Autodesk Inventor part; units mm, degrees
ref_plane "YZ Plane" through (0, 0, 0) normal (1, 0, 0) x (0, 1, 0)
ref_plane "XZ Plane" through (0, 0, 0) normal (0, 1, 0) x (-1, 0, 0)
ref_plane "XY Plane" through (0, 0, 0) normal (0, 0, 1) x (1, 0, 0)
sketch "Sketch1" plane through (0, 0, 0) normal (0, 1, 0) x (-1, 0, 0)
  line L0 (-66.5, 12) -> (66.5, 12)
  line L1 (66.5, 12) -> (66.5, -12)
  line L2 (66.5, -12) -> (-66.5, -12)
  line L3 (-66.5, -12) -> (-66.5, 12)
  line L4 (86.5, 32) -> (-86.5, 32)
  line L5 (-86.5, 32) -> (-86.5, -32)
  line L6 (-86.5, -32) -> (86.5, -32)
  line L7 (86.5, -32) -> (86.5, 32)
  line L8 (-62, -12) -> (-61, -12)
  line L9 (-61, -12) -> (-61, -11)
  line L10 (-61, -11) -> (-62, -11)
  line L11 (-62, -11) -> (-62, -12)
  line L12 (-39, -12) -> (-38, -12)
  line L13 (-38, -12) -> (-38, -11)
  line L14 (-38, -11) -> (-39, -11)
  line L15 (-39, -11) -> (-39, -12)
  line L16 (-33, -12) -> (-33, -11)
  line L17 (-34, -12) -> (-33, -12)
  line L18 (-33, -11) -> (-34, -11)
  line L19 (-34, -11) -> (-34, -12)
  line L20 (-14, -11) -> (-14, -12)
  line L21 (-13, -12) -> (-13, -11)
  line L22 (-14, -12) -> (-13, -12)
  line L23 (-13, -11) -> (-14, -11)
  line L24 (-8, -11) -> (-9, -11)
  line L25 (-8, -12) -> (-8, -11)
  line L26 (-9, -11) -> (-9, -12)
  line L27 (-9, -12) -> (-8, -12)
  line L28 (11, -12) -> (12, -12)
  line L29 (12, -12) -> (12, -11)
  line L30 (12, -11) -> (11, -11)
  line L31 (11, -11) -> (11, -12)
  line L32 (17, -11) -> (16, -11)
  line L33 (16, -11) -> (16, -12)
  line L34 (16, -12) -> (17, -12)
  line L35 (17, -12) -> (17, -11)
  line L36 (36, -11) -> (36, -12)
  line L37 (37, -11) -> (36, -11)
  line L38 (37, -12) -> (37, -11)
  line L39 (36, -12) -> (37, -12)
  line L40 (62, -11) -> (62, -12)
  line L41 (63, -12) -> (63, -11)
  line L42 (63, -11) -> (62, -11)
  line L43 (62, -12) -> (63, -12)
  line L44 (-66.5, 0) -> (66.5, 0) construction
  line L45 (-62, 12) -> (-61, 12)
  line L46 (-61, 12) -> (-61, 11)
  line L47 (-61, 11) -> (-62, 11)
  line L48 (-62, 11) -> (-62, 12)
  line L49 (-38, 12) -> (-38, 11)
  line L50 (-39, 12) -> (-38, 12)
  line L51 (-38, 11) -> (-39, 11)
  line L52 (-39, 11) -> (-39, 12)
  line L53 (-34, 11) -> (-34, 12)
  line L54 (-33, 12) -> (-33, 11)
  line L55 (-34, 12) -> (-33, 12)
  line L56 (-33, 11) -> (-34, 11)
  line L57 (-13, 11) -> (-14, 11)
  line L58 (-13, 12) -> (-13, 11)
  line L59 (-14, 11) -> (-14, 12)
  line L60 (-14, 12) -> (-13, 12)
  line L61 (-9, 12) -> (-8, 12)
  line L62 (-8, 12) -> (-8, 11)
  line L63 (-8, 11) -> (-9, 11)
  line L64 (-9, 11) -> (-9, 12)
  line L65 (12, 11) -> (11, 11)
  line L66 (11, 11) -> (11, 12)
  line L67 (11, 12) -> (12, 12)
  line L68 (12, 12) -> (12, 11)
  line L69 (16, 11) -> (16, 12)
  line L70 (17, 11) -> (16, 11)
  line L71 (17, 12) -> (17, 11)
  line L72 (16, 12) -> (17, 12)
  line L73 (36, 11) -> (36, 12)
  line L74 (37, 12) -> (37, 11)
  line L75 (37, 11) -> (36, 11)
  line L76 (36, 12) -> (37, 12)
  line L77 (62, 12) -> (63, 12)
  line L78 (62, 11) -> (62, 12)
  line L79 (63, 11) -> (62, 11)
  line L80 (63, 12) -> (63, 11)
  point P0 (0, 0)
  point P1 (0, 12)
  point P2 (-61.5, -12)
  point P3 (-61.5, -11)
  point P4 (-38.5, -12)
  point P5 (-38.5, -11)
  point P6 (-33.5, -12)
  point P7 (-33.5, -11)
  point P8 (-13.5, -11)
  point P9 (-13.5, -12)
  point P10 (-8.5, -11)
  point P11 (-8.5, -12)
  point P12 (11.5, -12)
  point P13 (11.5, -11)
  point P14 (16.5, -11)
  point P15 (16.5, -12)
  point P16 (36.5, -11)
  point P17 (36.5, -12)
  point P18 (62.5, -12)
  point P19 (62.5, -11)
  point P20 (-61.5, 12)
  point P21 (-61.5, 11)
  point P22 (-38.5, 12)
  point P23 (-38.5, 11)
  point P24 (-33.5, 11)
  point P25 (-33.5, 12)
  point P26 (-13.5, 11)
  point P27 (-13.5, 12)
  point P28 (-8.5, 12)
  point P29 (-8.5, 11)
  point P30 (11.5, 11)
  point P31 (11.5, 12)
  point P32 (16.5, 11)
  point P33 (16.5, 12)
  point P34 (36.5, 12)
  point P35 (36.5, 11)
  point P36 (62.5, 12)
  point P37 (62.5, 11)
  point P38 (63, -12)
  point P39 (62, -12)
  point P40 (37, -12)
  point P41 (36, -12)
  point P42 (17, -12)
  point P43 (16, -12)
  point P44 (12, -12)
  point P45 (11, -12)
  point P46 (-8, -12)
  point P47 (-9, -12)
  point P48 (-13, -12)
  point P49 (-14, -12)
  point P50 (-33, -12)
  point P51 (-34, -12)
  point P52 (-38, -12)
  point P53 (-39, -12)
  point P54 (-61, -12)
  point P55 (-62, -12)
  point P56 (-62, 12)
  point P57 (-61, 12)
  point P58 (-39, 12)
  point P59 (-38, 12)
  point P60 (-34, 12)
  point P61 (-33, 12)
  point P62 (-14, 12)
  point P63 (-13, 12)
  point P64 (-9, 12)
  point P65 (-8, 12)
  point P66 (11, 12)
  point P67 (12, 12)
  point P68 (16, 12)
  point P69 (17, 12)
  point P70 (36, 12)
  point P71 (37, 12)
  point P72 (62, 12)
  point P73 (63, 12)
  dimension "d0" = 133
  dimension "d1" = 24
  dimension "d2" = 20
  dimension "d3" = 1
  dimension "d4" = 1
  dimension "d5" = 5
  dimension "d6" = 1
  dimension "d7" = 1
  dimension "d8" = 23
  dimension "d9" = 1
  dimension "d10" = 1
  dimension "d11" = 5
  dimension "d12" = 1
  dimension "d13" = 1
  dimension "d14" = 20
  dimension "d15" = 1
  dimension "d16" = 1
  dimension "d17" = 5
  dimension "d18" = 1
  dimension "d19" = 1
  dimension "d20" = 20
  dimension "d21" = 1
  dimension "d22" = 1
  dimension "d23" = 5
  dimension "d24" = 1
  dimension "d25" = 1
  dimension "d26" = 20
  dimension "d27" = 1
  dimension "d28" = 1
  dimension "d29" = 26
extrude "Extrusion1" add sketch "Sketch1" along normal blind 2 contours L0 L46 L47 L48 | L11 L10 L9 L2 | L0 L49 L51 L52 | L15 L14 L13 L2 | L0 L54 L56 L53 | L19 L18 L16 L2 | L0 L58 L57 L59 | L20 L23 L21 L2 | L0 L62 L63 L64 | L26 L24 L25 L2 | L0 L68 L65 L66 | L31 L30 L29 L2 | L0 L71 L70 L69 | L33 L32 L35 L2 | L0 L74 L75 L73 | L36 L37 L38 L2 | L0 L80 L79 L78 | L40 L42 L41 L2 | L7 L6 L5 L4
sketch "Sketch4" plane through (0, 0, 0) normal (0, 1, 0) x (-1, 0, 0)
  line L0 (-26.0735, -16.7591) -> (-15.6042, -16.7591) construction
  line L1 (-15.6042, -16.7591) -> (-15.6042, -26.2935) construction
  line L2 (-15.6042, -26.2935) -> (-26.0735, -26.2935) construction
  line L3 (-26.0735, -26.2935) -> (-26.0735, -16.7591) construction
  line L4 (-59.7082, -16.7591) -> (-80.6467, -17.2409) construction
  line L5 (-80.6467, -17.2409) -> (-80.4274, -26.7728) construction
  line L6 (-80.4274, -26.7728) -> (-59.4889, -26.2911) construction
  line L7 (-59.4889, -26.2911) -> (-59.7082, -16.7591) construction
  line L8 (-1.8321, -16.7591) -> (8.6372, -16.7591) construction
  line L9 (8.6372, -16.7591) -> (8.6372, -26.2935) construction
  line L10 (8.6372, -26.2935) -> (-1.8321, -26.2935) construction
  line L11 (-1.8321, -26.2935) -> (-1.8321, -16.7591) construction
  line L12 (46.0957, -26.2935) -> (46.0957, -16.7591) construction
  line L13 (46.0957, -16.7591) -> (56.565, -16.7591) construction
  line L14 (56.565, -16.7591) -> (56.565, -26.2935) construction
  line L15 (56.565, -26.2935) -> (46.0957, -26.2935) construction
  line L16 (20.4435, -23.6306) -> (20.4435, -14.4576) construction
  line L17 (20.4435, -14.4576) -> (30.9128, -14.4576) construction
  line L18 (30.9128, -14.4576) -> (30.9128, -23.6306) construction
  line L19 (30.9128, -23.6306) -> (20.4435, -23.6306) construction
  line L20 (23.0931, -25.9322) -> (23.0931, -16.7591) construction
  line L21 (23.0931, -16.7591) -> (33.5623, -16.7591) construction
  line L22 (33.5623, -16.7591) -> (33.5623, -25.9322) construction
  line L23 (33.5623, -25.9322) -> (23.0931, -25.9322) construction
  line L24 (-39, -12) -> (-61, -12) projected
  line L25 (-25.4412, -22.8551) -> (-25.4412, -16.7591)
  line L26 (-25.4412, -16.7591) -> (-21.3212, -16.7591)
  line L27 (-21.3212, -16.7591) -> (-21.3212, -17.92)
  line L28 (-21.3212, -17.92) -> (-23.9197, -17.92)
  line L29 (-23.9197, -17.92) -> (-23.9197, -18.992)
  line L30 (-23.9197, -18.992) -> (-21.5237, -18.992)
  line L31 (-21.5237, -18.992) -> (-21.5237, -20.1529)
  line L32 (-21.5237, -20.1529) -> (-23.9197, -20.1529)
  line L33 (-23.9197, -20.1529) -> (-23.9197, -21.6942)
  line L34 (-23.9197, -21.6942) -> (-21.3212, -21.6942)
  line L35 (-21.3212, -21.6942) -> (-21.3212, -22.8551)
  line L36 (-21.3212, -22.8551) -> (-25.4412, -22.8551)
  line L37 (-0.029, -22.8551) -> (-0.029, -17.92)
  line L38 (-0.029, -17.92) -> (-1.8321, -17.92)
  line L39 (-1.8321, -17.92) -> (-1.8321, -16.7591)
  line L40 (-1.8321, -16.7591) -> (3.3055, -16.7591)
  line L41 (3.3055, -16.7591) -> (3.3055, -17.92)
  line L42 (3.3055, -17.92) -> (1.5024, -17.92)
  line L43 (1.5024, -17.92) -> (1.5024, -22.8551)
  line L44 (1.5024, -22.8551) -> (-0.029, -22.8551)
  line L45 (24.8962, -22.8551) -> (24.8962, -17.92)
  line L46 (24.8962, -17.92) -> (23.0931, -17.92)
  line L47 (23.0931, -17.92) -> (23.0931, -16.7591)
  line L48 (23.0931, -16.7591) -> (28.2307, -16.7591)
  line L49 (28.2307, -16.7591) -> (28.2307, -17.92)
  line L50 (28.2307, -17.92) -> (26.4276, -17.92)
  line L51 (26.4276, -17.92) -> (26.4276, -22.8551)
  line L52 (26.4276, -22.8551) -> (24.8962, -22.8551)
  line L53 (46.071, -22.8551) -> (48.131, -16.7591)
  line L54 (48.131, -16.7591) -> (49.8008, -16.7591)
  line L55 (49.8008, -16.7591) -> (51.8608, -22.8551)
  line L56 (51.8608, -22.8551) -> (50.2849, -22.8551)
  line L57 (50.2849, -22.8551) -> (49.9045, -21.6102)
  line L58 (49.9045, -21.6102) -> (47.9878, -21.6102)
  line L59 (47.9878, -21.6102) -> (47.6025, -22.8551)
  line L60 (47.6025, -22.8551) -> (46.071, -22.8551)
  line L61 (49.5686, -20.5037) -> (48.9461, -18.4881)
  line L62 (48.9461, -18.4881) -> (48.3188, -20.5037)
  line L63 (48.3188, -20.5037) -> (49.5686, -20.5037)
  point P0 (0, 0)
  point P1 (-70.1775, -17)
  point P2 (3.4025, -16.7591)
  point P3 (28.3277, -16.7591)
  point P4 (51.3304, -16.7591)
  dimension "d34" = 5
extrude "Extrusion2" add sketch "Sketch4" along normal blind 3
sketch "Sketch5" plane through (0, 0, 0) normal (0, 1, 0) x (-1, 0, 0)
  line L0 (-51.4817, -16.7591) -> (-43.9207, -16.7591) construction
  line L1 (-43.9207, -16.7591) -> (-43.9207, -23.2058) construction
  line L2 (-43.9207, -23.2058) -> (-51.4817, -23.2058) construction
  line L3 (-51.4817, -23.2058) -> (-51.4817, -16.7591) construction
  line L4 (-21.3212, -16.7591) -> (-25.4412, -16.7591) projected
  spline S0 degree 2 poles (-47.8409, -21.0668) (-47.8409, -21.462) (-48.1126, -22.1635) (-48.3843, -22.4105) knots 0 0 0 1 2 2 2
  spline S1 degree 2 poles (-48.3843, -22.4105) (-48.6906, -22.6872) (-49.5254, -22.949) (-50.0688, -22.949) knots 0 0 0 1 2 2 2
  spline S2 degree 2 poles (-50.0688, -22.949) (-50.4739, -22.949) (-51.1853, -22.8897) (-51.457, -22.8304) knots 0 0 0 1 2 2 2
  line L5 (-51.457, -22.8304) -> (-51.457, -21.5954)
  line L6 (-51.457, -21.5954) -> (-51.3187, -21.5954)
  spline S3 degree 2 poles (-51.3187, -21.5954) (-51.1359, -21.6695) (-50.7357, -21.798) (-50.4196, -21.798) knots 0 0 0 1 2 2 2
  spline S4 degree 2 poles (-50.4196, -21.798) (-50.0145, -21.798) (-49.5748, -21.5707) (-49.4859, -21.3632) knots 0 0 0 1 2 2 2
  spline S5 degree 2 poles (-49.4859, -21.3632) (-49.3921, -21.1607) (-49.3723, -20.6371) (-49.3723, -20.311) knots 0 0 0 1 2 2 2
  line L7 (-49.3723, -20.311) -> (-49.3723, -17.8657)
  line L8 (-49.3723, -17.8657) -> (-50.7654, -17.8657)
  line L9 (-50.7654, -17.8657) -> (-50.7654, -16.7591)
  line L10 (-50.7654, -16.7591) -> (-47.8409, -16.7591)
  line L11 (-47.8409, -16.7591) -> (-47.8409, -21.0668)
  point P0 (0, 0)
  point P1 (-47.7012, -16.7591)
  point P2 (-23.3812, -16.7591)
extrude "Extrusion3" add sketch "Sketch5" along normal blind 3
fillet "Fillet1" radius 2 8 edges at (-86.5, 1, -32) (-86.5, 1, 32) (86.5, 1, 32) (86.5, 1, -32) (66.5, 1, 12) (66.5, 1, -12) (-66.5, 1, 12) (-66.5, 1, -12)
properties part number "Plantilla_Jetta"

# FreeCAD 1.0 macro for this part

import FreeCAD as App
import Part
import Sketcher

V = App.Vector
Q = App.Units.Quantity


def edges_at(feature, points):
    """Names of the edges that pass closest to the given points."""
    edges = feature.Shape.Edges
    near = lambda p: min(range(len(edges)), key=lambda i: edges[i].distToShape(Part.Vertex(*p))[0])
    return sorted({f"Edge{near(p) + 1}" for p in points})

doc = App.newDocument("Part")
body = doc.addObject("PartDesign::Body", "Body")

sketch1 = body.newObject("Sketcher::SketchObject", "Sketch")
sketch1.AttachmentSupport = (doc.getObject("XZ_Plane"), [""])
sketch1.MapMode = "FlatFace"
sketch1.addGeometry(Part.LineSegment(V(-86.5, -32, 0), V(-86.5, 32, 0)), False)
sketch1.addGeometry(Part.LineSegment(V(-86.5, 32, 0), V(86.5, 32, 0)), False)
sketch1.addGeometry(Part.LineSegment(V(86.5, 32, 0), V(86.5, -32, 0)), False)
sketch1.addGeometry(Part.LineSegment(V(86.5, -32, 0), V(-86.5, -32, 0)), False)
sketch1.addGeometry(Part.LineSegment(V(61, 11, 0), V(61, 12, 0)), False)
sketch1.addGeometry(Part.LineSegment(V(61, 12, 0), V(39, 12, 0)), False)
sketch1.addGeometry(Part.LineSegment(V(39, 12, 0), V(39, 11, 0)), False)
sketch1.addGeometry(Part.LineSegment(V(39, 11, 0), V(38, 11, 0)), False)
sketch1.addGeometry(Part.LineSegment(V(38, 11, 0), V(38, 12, 0)), False)
sketch1.addGeometry(Part.LineSegment(V(38, 12, 0), V(34, 12, 0)), False)
sketch1.addGeometry(Part.LineSegment(V(34, 12, 0), V(34, 11, 0)), False)
sketch1.addGeometry(Part.LineSegment(V(34, 11, 0), V(33, 11, 0)), False)
sketch1.addGeometry(Part.LineSegment(V(33, 11, 0), V(33, 12, 0)), False)
sketch1.addGeometry(Part.LineSegment(V(33, 12, 0), V(14, 12, 0)), False)
sketch1.addGeometry(Part.LineSegment(V(14, 12, 0), V(14, 11, 0)), False)
sketch1.addGeometry(Part.LineSegment(V(14, 11, 0), V(13, 11, 0)), False)
sketch1.addGeometry(Part.LineSegment(V(13, 11, 0), V(13, 12, 0)), False)
sketch1.addGeometry(Part.LineSegment(V(13, 12, 0), V(9, 12, 0)), False)
sketch1.addGeometry(Part.LineSegment(V(9, 12, 0), V(9, 11, 0)), False)
sketch1.addGeometry(Part.LineSegment(V(9, 11, 0), V(8, 11, 0)), False)
sketch1.addGeometry(Part.LineSegment(V(8, 11, 0), V(8, 12, 0)), False)
sketch1.addGeometry(Part.LineSegment(V(8, 12, 0), V(-11, 12, 0)), False)
sketch1.addGeometry(Part.LineSegment(V(-11, 12, 0), V(-11, 11, 0)), False)
sketch1.addGeometry(Part.LineSegment(V(-11, 11, 0), V(-12, 11, 0)), False)
sketch1.addGeometry(Part.LineSegment(V(-12, 11, 0), V(-12, 12, 0)), False)
sketch1.addGeometry(Part.LineSegment(V(-12, 12, 0), V(-16, 12, 0)), False)
sketch1.addGeometry(Part.LineSegment(V(-16, 12, 0), V(-16, 11, 0)), False)
sketch1.addGeometry(Part.LineSegment(V(-16, 11, 0), V(-17, 11, 0)), False)
sketch1.addGeometry(Part.LineSegment(V(-17, 11, 0), V(-17, 12, 0)), False)
sketch1.addGeometry(Part.LineSegment(V(-17, 12, 0), V(-36, 12, 0)), False)
sketch1.addGeometry(Part.LineSegment(V(-36, 12, 0), V(-36, 11, 0)), False)
sketch1.addGeometry(Part.LineSegment(V(-36, 11, 0), V(-37, 11, 0)), False)
sketch1.addGeometry(Part.LineSegment(V(-37, 11, 0), V(-37, 12, 0)), False)
sketch1.addGeometry(Part.LineSegment(V(-37, 12, 0), V(-62, 12, 0)), False)
sketch1.addGeometry(Part.LineSegment(V(-62, 12, 0), V(-62, 11, 0)), False)
sketch1.addGeometry(Part.LineSegment(V(-62, 11, 0), V(-63, 11, 0)), False)
sketch1.addGeometry(Part.LineSegment(V(-63, 11, 0), V(-63, 12, 0)), False)
sketch1.addGeometry(Part.LineSegment(V(-63, 12, 0), V(-66.5, 12, 0)), False)
sketch1.addGeometry(Part.LineSegment(V(-66.5, 12, 0), V(-66.5, -12, 0)), False)
sketch1.addGeometry(Part.LineSegment(V(-66.5, -12, 0), V(-63, -12, 0)), False)
sketch1.addGeometry(Part.LineSegment(V(-63, -12, 0), V(-63, -11, 0)), False)
sketch1.addGeometry(Part.LineSegment(V(-63, -11, 0), V(-62, -11, 0)), False)
sketch1.addGeometry(Part.LineSegment(V(-62, -11, 0), V(-62, -12, 0)), False)
sketch1.addGeometry(Part.LineSegment(V(-62, -12, 0), V(-37, -12, 0)), False)
sketch1.addGeometry(Part.LineSegment(V(-37, -12, 0), V(-37, -11, 0)), False)
sketch1.addGeometry(Part.LineSegment(V(-37, -11, 0), V(-36, -11, 0)), False)
sketch1.addGeometry(Part.LineSegment(V(-36, -11, 0), V(-36, -12, 0)), False)
sketch1.addGeometry(Part.LineSegment(V(-36, -12, 0), V(-17, -12, 0)), False)
sketch1.addGeometry(Part.LineSegment(V(-17, -12, 0), V(-17, -11, 0)), False)
sketch1.addGeometry(Part.LineSegment(V(-17, -11, 0), V(-16, -11, 0)), False)
sketch1.addGeometry(Part.LineSegment(V(-16, -11, 0), V(-16, -12, 0)), False)
sketch1.addGeometry(Part.LineSegment(V(-16, -12, 0), V(-12, -12, 0)), False)
sketch1.addGeometry(Part.LineSegment(V(-12, -12, 0), V(-12, -11, 0)), False)
sketch1.addGeometry(Part.LineSegment(V(-12, -11, 0), V(-11, -11, 0)), False)
sketch1.addGeometry(Part.LineSegment(V(-11, -11, 0), V(-11, -12, 0)), False)
sketch1.addGeometry(Part.LineSegment(V(-11, -12, 0), V(8, -12, 0)), False)
sketch1.addGeometry(Part.LineSegment(V(8, -12, 0), V(8, -11, 0)), False)
sketch1.addGeometry(Part.LineSegment(V(8, -11, 0), V(9, -11, 0)), False)
sketch1.addGeometry(Part.LineSegment(V(9, -11, 0), V(9, -12, 0)), False)
sketch1.addGeometry(Part.LineSegment(V(9, -12, 0), V(13, -12, 0)), False)
sketch1.addGeometry(Part.LineSegment(V(13, -12, 0), V(13, -11, 0)), False)
sketch1.addGeometry(Part.LineSegment(V(13, -11, 0), V(14, -11, 0)), False)
sketch1.addGeometry(Part.LineSegment(V(14, -11, 0), V(14, -12, 0)), False)
sketch1.addGeometry(Part.LineSegment(V(14, -12, 0), V(33, -12, 0)), False)
sketch1.addGeometry(Part.LineSegment(V(33, -12, 0), V(33, -11, 0)), False)
sketch1.addGeometry(Part.LineSegment(V(33, -11, 0), V(34, -11, 0)), False)
sketch1.addGeometry(Part.LineSegment(V(34, -11, 0), V(34, -12, 0)), False)
sketch1.addGeometry(Part.LineSegment(V(34, -12, 0), V(38, -12, 0)), False)
sketch1.addGeometry(Part.LineSegment(V(38, -12, 0), V(38, -11, 0)), False)
sketch1.addGeometry(Part.LineSegment(V(38, -11, 0), V(39, -11, 0)), False)
sketch1.addGeometry(Part.LineSegment(V(39, -11, 0), V(39, -12, 0)), False)
sketch1.addGeometry(Part.LineSegment(V(39, -12, 0), V(61, -12, 0)), False)
sketch1.addGeometry(Part.LineSegment(V(61, -12, 0), V(61, -11, 0)), False)
sketch1.addGeometry(Part.LineSegment(V(61, -11, 0), V(62, -11, 0)), False)
sketch1.addGeometry(Part.LineSegment(V(62, -11, 0), V(62, -12, 0)), False)
sketch1.addGeometry(Part.LineSegment(V(62, -12, 0), V(66.5, -12, 0)), False)
sketch1.addGeometry(Part.LineSegment(V(66.5, -12, 0), V(66.5, 12, 0)), False)
sketch1.addGeometry(Part.LineSegment(V(66.5, 12, 0), V(62, 12, 0)), False)
sketch1.addGeometry(Part.LineSegment(V(62, 12, 0), V(62, 11, 0)), False)
sketch1.addGeometry(Part.LineSegment(V(62, 11, 0), V(61, 11, 0)), False)
sketch1.addConstraint(Sketcher.Constraint("Coincident", 0, 2, 1, 1))
sketch1.addConstraint(Sketcher.Constraint("Coincident", 1, 2, 2, 1))
sketch1.addConstraint(Sketcher.Constraint("Coincident", 2, 2, 3, 1))
sketch1.addConstraint(Sketcher.Constraint("Coincident", 3, 2, 0, 1))
sketch1.addConstraint(Sketcher.Constraint("Coincident", 4, 2, 5, 1))
sketch1.addConstraint(Sketcher.Constraint("Coincident", 5, 2, 6, 1))
sketch1.addConstraint(Sketcher.Constraint("Coincident", 6, 2, 7, 1))
sketch1.addConstraint(Sketcher.Constraint("Coincident", 7, 2, 8, 1))
sketch1.addConstraint(Sketcher.Constraint("Coincident", 8, 2, 9, 1))
sketch1.addConstraint(Sketcher.Constraint("Coincident", 9, 2, 10, 1))
sketch1.addConstraint(Sketcher.Constraint("Coincident", 10, 2, 11, 1))
sketch1.addConstraint(Sketcher.Constraint("Coincident", 11, 2, 12, 1))
sketch1.addConstraint(Sketcher.Constraint("Coincident", 12, 2, 13, 1))
sketch1.addConstraint(Sketcher.Constraint("Coincident", 13, 2, 14, 1))
sketch1.addConstraint(Sketcher.Constraint("Coincident", 14, 2, 15, 1))
sketch1.addConstraint(Sketcher.Constraint("Coincident", 15, 2, 16, 1))
sketch1.addConstraint(Sketcher.Constraint("Coincident", 16, 2, 17, 1))
sketch1.addConstraint(Sketcher.Constraint("Coincident", 17, 2, 18, 1))
sketch1.addConstraint(Sketcher.Constraint("Coincident", 18, 2, 19, 1))
sketch1.addConstraint(Sketcher.Constraint("Coincident", 19, 2, 20, 1))
sketch1.addConstraint(Sketcher.Constraint("Coincident", 20, 2, 21, 1))
sketch1.addConstraint(Sketcher.Constraint("Coincident", 21, 2, 22, 1))
sketch1.addConstraint(Sketcher.Constraint("Coincident", 22, 2, 23, 1))
sketch1.addConstraint(Sketcher.Constraint("Coincident", 23, 2, 24, 1))
sketch1.addConstraint(Sketcher.Constraint("Coincident", 24, 2, 25, 1))
sketch1.addConstraint(Sketcher.Constraint("Coincident", 25, 2, 26, 1))
sketch1.addConstraint(Sketcher.Constraint("Coincident", 26, 2, 27, 1))
sketch1.addConstraint(Sketcher.Constraint("Coincident", 27, 2, 28, 1))
sketch1.addConstraint(Sketcher.Constraint("Coincident", 28, 2, 29, 1))
sketch1.addConstraint(Sketcher.Constraint("Coincident", 29, 2, 30, 1))
sketch1.addConstraint(Sketcher.Constraint("Coincident", 30, 2, 31, 1))
sketch1.addConstraint(Sketcher.Constraint("Coincident", 31, 2, 32, 1))
sketch1.addConstraint(Sketcher.Constraint("Coincident", 32, 2, 33, 1))
sketch1.addConstraint(Sketcher.Constraint("Coincident", 33, 2, 34, 1))
sketch1.addConstraint(Sketcher.Constraint("Coincident", 34, 2, 35, 1))
sketch1.addConstraint(Sketcher.Constraint("Coincident", 35, 2, 36, 1))
sketch1.addConstraint(Sketcher.Constraint("Coincident", 36, 2, 37, 1))
sketch1.addConstraint(Sketcher.Constraint("Coincident", 37, 2, 38, 1))
sketch1.addConstraint(Sketcher.Constraint("Coincident", 38, 2, 39, 1))
sketch1.addConstraint(Sketcher.Constraint("Coincident", 39, 2, 40, 1))
sketch1.addConstraint(Sketcher.Constraint("Coincident", 40, 2, 41, 1))
sketch1.addConstraint(Sketcher.Constraint("Coincident", 41, 2, 42, 1))
sketch1.addConstraint(Sketcher.Constraint("Coincident", 42, 2, 43, 1))
sketch1.addConstraint(Sketcher.Constraint("Coincident", 43, 2, 44, 1))
sketch1.addConstraint(Sketcher.Constraint("Coincident", 44, 2, 45, 1))
sketch1.addConstraint(Sketcher.Constraint("Coincident", 45, 2, 46, 1))
sketch1.addConstraint(Sketcher.Constraint("Coincident", 46, 2, 47, 1))
sketch1.addConstraint(Sketcher.Constraint("Coincident", 47, 2, 48, 1))
sketch1.addConstraint(Sketcher.Constraint("Coincident", 48, 2, 49, 1))
sketch1.addConstraint(Sketcher.Constraint("Coincident", 49, 2, 50, 1))
sketch1.addConstraint(Sketcher.Constraint("Coincident", 50, 2, 51, 1))
sketch1.addConstraint(Sketcher.Constraint("Coincident", 51, 2, 52, 1))
sketch1.addConstraint(Sketcher.Constraint("Coincident", 52, 2, 53, 1))
sketch1.addConstraint(Sketcher.Constraint("Coincident", 53, 2, 54, 1))
sketch1.addConstraint(Sketcher.Constraint("Coincident", 54, 2, 55, 1))
sketch1.addConstraint(Sketcher.Constraint("Coincident", 55, 2, 56, 1))
sketch1.addConstraint(Sketcher.Constraint("Coincident", 56, 2, 57, 1))
sketch1.addConstraint(Sketcher.Constraint("Coincident", 57, 2, 58, 1))
sketch1.addConstraint(Sketcher.Constraint("Coincident", 58, 2, 59, 1))
sketch1.addConstraint(Sketcher.Constraint("Coincident", 59, 2, 60, 1))
sketch1.addConstraint(Sketcher.Constraint("Coincident", 60, 2, 61, 1))
sketch1.addConstraint(Sketcher.Constraint("Coincident", 61, 2, 62, 1))
sketch1.addConstraint(Sketcher.Constraint("Coincident", 62, 2, 63, 1))
sketch1.addConstraint(Sketcher.Constraint("Coincident", 63, 2, 64, 1))
sketch1.addConstraint(Sketcher.Constraint("Coincident", 64, 2, 65, 1))
sketch1.addConstraint(Sketcher.Constraint("Coincident", 65, 2, 66, 1))
sketch1.addConstraint(Sketcher.Constraint("Coincident", 66, 2, 67, 1))
sketch1.addConstraint(Sketcher.Constraint("Coincident", 67, 2, 68, 1))
sketch1.addConstraint(Sketcher.Constraint("Coincident", 68, 2, 69, 1))
sketch1.addConstraint(Sketcher.Constraint("Coincident", 69, 2, 70, 1))
sketch1.addConstraint(Sketcher.Constraint("Coincident", 70, 2, 71, 1))
sketch1.addConstraint(Sketcher.Constraint("Coincident", 71, 2, 72, 1))
sketch1.addConstraint(Sketcher.Constraint("Coincident", 72, 2, 73, 1))
sketch1.addConstraint(Sketcher.Constraint("Coincident", 73, 2, 74, 1))
sketch1.addConstraint(Sketcher.Constraint("Coincident", 74, 2, 75, 1))
sketch1.addConstraint(Sketcher.Constraint("Coincident", 75, 2, 76, 1))
sketch1.addConstraint(Sketcher.Constraint("Coincident", 76, 2, 77, 1))
sketch1.addConstraint(Sketcher.Constraint("Coincident", 77, 2, 78, 1))
sketch1.addConstraint(Sketcher.Constraint("Coincident", 78, 2, 79, 1))
sketch1.addConstraint(Sketcher.Constraint("Coincident", 79, 2, 4, 1))
sketch1.addConstraint(Sketcher.Constraint("Vertical", 0))
sketch1.addConstraint(Sketcher.Constraint("Horizontal", 1))
sketch1.addConstraint(Sketcher.Constraint("Vertical", 2))
sketch1.addConstraint(Sketcher.Constraint("Horizontal", 3))
sketch1.addConstraint(Sketcher.Constraint("Vertical", 4))
sketch1.addConstraint(Sketcher.Constraint("Horizontal", 5))
sketch1.addConstraint(Sketcher.Constraint("Vertical", 6))
sketch1.addConstraint(Sketcher.Constraint("Horizontal", 7))
sketch1.addConstraint(Sketcher.Constraint("Vertical", 8))
sketch1.addConstraint(Sketcher.Constraint("Horizontal", 9))
sketch1.addConstraint(Sketcher.Constraint("Vertical", 10))
sketch1.addConstraint(Sketcher.Constraint("Horizontal", 11))
sketch1.addConstraint(Sketcher.Constraint("Vertical", 12))
sketch1.addConstraint(Sketcher.Constraint("Horizontal", 13))
sketch1.addConstraint(Sketcher.Constraint("Vertical", 14))
sketch1.addConstraint(Sketcher.Constraint("Horizontal", 15))
sketch1.addConstraint(Sketcher.Constraint("Vertical", 16))
sketch1.addConstraint(Sketcher.Constraint("Horizontal", 17))
sketch1.addConstraint(Sketcher.Constraint("Vertical", 18))
sketch1.addConstraint(Sketcher.Constraint("Horizontal", 19))
sketch1.addConstraint(Sketcher.Constraint("Vertical", 20))
sketch1.addConstraint(Sketcher.Constraint("Horizontal", 21))
sketch1.addConstraint(Sketcher.Constraint("Vertical", 22))
sketch1.addConstraint(Sketcher.Constraint("Horizontal", 23))
sketch1.addConstraint(Sketcher.Constraint("Vertical", 24))
sketch1.addConstraint(Sketcher.Constraint("Horizontal", 25))
sketch1.addConstraint(Sketcher.Constraint("Vertical", 26))
sketch1.addConstraint(Sketcher.Constraint("Horizontal", 27))
sketch1.addConstraint(Sketcher.Constraint("Vertical", 28))
sketch1.addConstraint(Sketcher.Constraint("Horizontal", 29))
sketch1.addConstraint(Sketcher.Constraint("Vertical", 30))
sketch1.addConstraint(Sketcher.Constraint("Horizontal", 31))
sketch1.addConstraint(Sketcher.Constraint("Vertical", 32))
sketch1.addConstraint(Sketcher.Constraint("Horizontal", 33))
sketch1.addConstraint(Sketcher.Constraint("Vertical", 34))
sketch1.addConstraint(Sketcher.Constraint("Horizontal", 35))
sketch1.addConstraint(Sketcher.Constraint("Vertical", 36))
sketch1.addConstraint(Sketcher.Constraint("Horizontal", 37))
sketch1.addConstraint(Sketcher.Constraint("Vertical", 38))
sketch1.addConstraint(Sketcher.Constraint("Horizontal", 39))
sketch1.addConstraint(Sketcher.Constraint("Vertical", 40))
sketch1.addConstraint(Sketcher.Constraint("Horizontal", 41))
sketch1.addConstraint(Sketcher.Constraint("Vertical", 42))
sketch1.addConstraint(Sketcher.Constraint("Horizontal", 43))
sketch1.addConstraint(Sketcher.Constraint("Vertical", 44))
sketch1.addConstraint(Sketcher.Constraint("Horizontal", 45))
sketch1.addConstraint(Sketcher.Constraint("Vertical", 46))
sketch1.addConstraint(Sketcher.Constraint("Horizontal", 47))
sketch1.addConstraint(Sketcher.Constraint("Vertical", 48))
sketch1.addConstraint(Sketcher.Constraint("Horizontal", 49))
sketch1.addConstraint(Sketcher.Constraint("Vertical", 50))
sketch1.addConstraint(Sketcher.Constraint("Horizontal", 51))
sketch1.addConstraint(Sketcher.Constraint("Vertical", 52))
sketch1.addConstraint(Sketcher.Constraint("Horizontal", 53))
sketch1.addConstraint(Sketcher.Constraint("Vertical", 54))
sketch1.addConstraint(Sketcher.Constraint("Horizontal", 55))
sketch1.addConstraint(Sketcher.Constraint("Vertical", 56))
sketch1.addConstraint(Sketcher.Constraint("Horizontal", 57))
sketch1.addConstraint(Sketcher.Constraint("Vertical", 58))
sketch1.addConstraint(Sketcher.Constraint("Horizontal", 59))
sketch1.addConstraint(Sketcher.Constraint("Vertical", 60))
sketch1.addConstraint(Sketcher.Constraint("Horizontal", 61))
sketch1.addConstraint(Sketcher.Constraint("Vertical", 62))
sketch1.addConstraint(Sketcher.Constraint("Horizontal", 63))
sketch1.addConstraint(Sketcher.Constraint("Vertical", 64))
sketch1.addConstraint(Sketcher.Constraint("Horizontal", 65))
sketch1.addConstraint(Sketcher.Constraint("Vertical", 66))
sketch1.addConstraint(Sketcher.Constraint("Horizontal", 67))
sketch1.addConstraint(Sketcher.Constraint("Vertical", 68))
sketch1.addConstraint(Sketcher.Constraint("Horizontal", 69))
sketch1.addConstraint(Sketcher.Constraint("Vertical", 70))
sketch1.addConstraint(Sketcher.Constraint("Horizontal", 71))
sketch1.addConstraint(Sketcher.Constraint("Vertical", 72))
sketch1.addConstraint(Sketcher.Constraint("Horizontal", 73))
sketch1.addConstraint(Sketcher.Constraint("Vertical", 74))
sketch1.addConstraint(Sketcher.Constraint("Horizontal", 75))
sketch1.addConstraint(Sketcher.Constraint("Vertical", 76))
sketch1.addConstraint(Sketcher.Constraint("Horizontal", 77))
sketch1.addConstraint(Sketcher.Constraint("Vertical", 78))
sketch1.addConstraint(Sketcher.Constraint("Horizontal", 79))
sketch1.addConstraint(Sketcher.Constraint("Symmetric", 0, 2, 2, 2, -1, 1))
sketch1.addConstraint(Sketcher.Constraint("Symmetric", 34, 2, 73, 2, -1, 1))
sketch1.addConstraint(Sketcher.Constraint("Symmetric", 37, 2, 75, 2, -1, 1))
sketch1.addConstraint(Sketcher.Constraint("Symmetric", 42, 2, 77, 2, -1, 1))
sketch1.addConstraint(Sketcher.Constraint("Symmetric", 41, 2, 73, 2, -2))
sketch1.addConstraint(Sketcher.Constraint("Symmetric", 36, 2, 39, 2, -1))
sketch1.addConstraint(Sketcher.Constraint("Symmetric", 32, 2, 43, 2, -1))
sketch1.addConstraint(Sketcher.Constraint("Symmetric", 30, 2, 45, 2, -1))
sketch1.addConstraint(Sketcher.Constraint("Symmetric", 28, 2, 47, 2, -1))
sketch1.addConstraint(Sketcher.Constraint("Symmetric", 26, 2, 49, 2, -1))
sketch1.addConstraint(Sketcher.Constraint("Symmetric", 24, 2, 51, 2, -1))
sketch1.addConstraint(Sketcher.Constraint("Symmetric", 22, 2, 53, 2, -1))
sketch1.addConstraint(Sketcher.Constraint("Symmetric", 20, 2, 55, 2, -1))
sketch1.addConstraint(Sketcher.Constraint("Symmetric", 18, 2, 57, 2, -1))
sketch1.addConstraint(Sketcher.Constraint("Symmetric", 16, 2, 59, 2, -1))
sketch1.addConstraint(Sketcher.Constraint("Symmetric", 14, 2, 61, 2, -1))
sketch1.addConstraint(Sketcher.Constraint("Symmetric", 12, 2, 63, 2, -1))
sketch1.addConstraint(Sketcher.Constraint("Symmetric", 10, 2, 65, 2, -1))
sketch1.addConstraint(Sketcher.Constraint("Symmetric", 8, 2, 67, 2, -1))
sketch1.addConstraint(Sketcher.Constraint("Symmetric", 6, 2, 69, 2, -1))
sketch1.addConstraint(Sketcher.Constraint("Symmetric", 4, 2, 71, 2, -1))
sketch1.addConstraint(Sketcher.Constraint("Horizontal", 5, 2, 8, 2))
sketch1.addConstraint(Sketcher.Constraint("Horizontal", 7, 2, 10, 2))
sketch1.addConstraint(Sketcher.Constraint("Horizontal", 9, 2, 12, 2))
sketch1.addConstraint(Sketcher.Constraint("Horizontal", 11, 2, 14, 2))
sketch1.addConstraint(Sketcher.Constraint("Horizontal", 13, 2, 16, 2))
sketch1.addConstraint(Sketcher.Constraint("Horizontal", 15, 2, 18, 2))
sketch1.addConstraint(Sketcher.Constraint("Horizontal", 17, 2, 20, 2))
sketch1.addConstraint(Sketcher.Constraint("Horizontal", 19, 2, 22, 2))
sketch1.addConstraint(Sketcher.Constraint("Horizontal", 21, 2, 24, 2))
sketch1.addConstraint(Sketcher.Constraint("Horizontal", 23, 2, 26, 2))
sketch1.addConstraint(Sketcher.Constraint("Horizontal", 25, 2, 28, 2))
sketch1.addConstraint(Sketcher.Constraint("Horizontal", 27, 2, 30, 2))
sketch1.addConstraint(Sketcher.Constraint("Horizontal", 29, 2, 32, 2))
sketch1.addConstraint(Sketcher.Constraint("Horizontal", 31, 2, 34, 2))
sketch1.addConstraint(Sketcher.Constraint("Horizontal", 33, 2, 36, 2))
sketch1.addConstraint(Sketcher.Constraint("Horizontal", 35, 2, 78, 2))
sketch1.addConstraint(Sketcher.Constraint("Equal", 7, 11))
sketch1.addConstraint(Sketcher.Constraint("Equal", 11, 15))
sketch1.addConstraint(Sketcher.Constraint("Equal", 9, 17))
sketch1.addConstraint(Sketcher.Constraint("Equal", 15, 19))
sketch1.addConstraint(Sketcher.Constraint("Equal", 13, 21))
sketch1.addConstraint(Sketcher.Constraint("Equal", 19, 23))
sketch1.addConstraint(Sketcher.Constraint("Equal", 17, 25))
sketch1.addConstraint(Sketcher.Constraint("Equal", 23, 27))
sketch1.addConstraint(Sketcher.Constraint("Equal", 21, 29))
sketch1.addConstraint(Sketcher.Constraint("Equal", 27, 31))
sketch1.addConstraint(Sketcher.Constraint("Equal", 31, 35))
sketch1.addConstraint(Sketcher.Constraint("Equal", 69, 73))
sketch1.addConstraint(Sketcher.Constraint("Equal", 79, 4))
sketch1.addConstraint(Sketcher.Constraint("DistanceX", 7, 2, 7, 1, Q("1 mm")))
sketch1.addConstraint(Sketcher.Constraint("DistanceY", 38, 2, 38, 1, Q("24 mm")))
sketch1.addConstraint(Sketcher.Constraint("DistanceX", 1, 1, 1, 2, Q("173 mm")))
sketch1.addConstraint(Sketcher.Constraint("DistanceX", 5, 2, 5, 1, Q("22 mm")))
sketch1.addConstraint(Sketcher.Constraint("DistanceX", 9, 2, 9, 1, Q("4 mm")))
sketch1.addConstraint(Sketcher.Constraint("DistanceX", 13, 2, 13, 1, Q("19 mm")))
sketch1.addConstraint(Sketcher.Constraint("DistanceX", 33, 2, 33, 1, Q("25 mm")))
sketch1.addConstraint(Sketcher.Constraint("DistanceY", 0, 1, 0, 2, Q("64 mm")))
sketch1.addConstraint(Sketcher.Constraint("DistanceX", 37, 2, 37, 1, Q("3.5 mm")))
pad1 = body.newObject("PartDesign::Pad", "Pad")
pad1.Profile = sketch1
pad1.Length = 2
pad1.Reversed = True

sketch2 = body.newObject("Sketcher::SketchObject", "Sketch001")
sketch2.AttachmentSupport = (doc.getObject("XZ_Plane"), [""])
sketch2.MapMode = "FlatFace"
sketch2.addGeometry(Part.LineSegment(V(25.4, -16.8, 0), V(25.4, -22.9, 0)), False)
sketch2.addGeometry(Part.LineSegment(V(25.4, -22.9, 0), V(21.3, -22.9, 0)), False)
sketch2.addGeometry(Part.LineSegment(V(21.3, -22.9, 0), V(21.3, -21.7, 0)), False)
sketch2.addGeometry(Part.LineSegment(V(21.3, -21.7, 0), V(23.9, -21.7, 0)), False)
sketch2.addGeometry(Part.LineSegment(V(23.9, -21.7, 0), V(23.9, -20.2, 0)), False)
sketch2.addGeometry(Part.LineSegment(V(23.9, -20.2, 0), V(21.5, -20.2, 0)), False)
sketch2.addGeometry(Part.LineSegment(V(21.5, -20.2, 0), V(21.5, -19, 0)), False)
sketch2.addGeometry(Part.LineSegment(V(21.5, -19, 0), V(23.9, -19, 0)), False)
sketch2.addGeometry(Part.LineSegment(V(23.9, -19, 0), V(23.9, -17.9, 0)), False)
sketch2.addGeometry(Part.LineSegment(V(23.9, -17.9, 0), V(21.3, -17.9, 0)), False)
sketch2.addGeometry(Part.LineSegment(V(21.3, -17.9, 0), V(21.3, -16.8, 0)), False)
sketch2.addGeometry(Part.LineSegment(V(21.3, -16.8, 0), V(25.4, -16.8, 0)), False)
sketch2.addGeometry(Part.LineSegment(V(0, -17.9, 0), V(0, -22.9, 0)), False)
sketch2.addGeometry(Part.LineSegment(V(0, -22.9, 0), V(-1.5, -22.9, 0)), False)
sketch2.addGeometry(Part.LineSegment(V(-1.5, -22.9, 0), V(-1.5, -17.9, 0)), False)
sketch2.addGeometry(Part.LineSegment(V(-1.5, -17.9, 0), V(-3.3, -17.9, 0)), False)
sketch2.addGeometry(Part.LineSegment(V(-3.3, -17.9, 0), V(-3.3, -16.8, 0)), False)
sketch2.addGeometry(Part.LineSegment(V(-3.3, -16.8, 0), V(1.8, -16.8, 0)), False)
sketch2.addGeometry(Part.LineSegment(V(1.8, -16.8, 0), V(1.8, -17.9, 0)), False)
sketch2.addGeometry(Part.LineSegment(V(1.8, -17.9, 0), V(0, -17.9, 0)), False)
sketch2.addGeometry(Part.LineSegment(V(-24.9, -17.9, 0), V(-24.9, -22.9, 0)), False)
sketch2.addGeometry(Part.LineSegment(V(-24.9, -22.9, 0), V(-26.4, -22.9, 0)), False)
sketch2.addGeometry(Part.LineSegment(V(-26.4, -22.9, 0), V(-26.4, -17.9, 0)), False)
sketch2.addGeometry(Part.LineSegment(V(-26.4, -17.9, 0), V(-28.2, -17.9, 0)), False)
sketch2.addGeometry(Part.LineSegment(V(-28.2, -17.9, 0), V(-28.2, -16.8, 0)), False)
sketch2.addGeometry(Part.LineSegment(V(-28.2, -16.8, 0), V(-23.1, -16.8, 0)), False)
sketch2.addGeometry(Part.LineSegment(V(-23.1, -16.8, 0), V(-23.1, -17.9, 0)), False)
sketch2.addGeometry(Part.LineSegment(V(-23.1, -17.9, 0), V(-24.9, -17.9, 0)), False)
sketch2.addGeometry(Part.LineSegment(V(-48.1, -16.8, 0), V(-46.1, -22.9, 0)), False)
sketch2.addGeometry(Part.LineSegment(V(-46.1, -22.9, 0), V(-47.6, -22.9, 0)), False)
sketch2.addGeometry(Part.LineSegment(V(-47.6, -22.9, 0), V(-48, -21.6, 0)), False)
sketch2.addGeometry(Part.LineSegment(V(-48, -21.6, 0), V(-49.9, -21.6, 0)), False)
sketch2.addGeometry(Part.LineSegment(V(-49.9, -21.6, 0), V(-50.3, -22.9, 0)), False)
sketch2.addGeometry(Part.LineSegment(V(-50.3, -22.9, 0), V(-51.9, -22.9, 0)), False)
sketch2.addGeometry(Part.LineSegment(V(-51.9, -22.9, 0), V(-49.8, -16.8, 0)), False)
sketch2.addGeometry(Part.LineSegment(V(-49.8, -16.8, 0), V(-48.1, -16.8, 0)), False)
sketch2.addGeometry(Part.LineSegment(V(-48.9, -18.5, 0), V(-49.6, -20.5, 0)), False)
sketch2.addGeometry(Part.LineSegment(V(-49.6, -20.5, 0), V(-48.3, -20.5, 0)), False)
sketch2.addGeometry(Part.LineSegment(V(-48.3, -20.5, 0), V(-48.9, -18.5, 0)), False)
sketch2.addConstraint(Sketcher.Constraint("Coincident", 0, 2, 1, 1))
sketch2.addConstraint(Sketcher.Constraint("Coincident", 1, 2, 2, 1))
sketch2.addConstraint(Sketcher.Constraint("Coincident", 2, 2, 3, 1))
sketch2.addConstraint(Sketcher.Constraint("Coincident", 3, 2, 4, 1))
sketch2.addConstraint(Sketcher.Constraint("Coincident", 4, 2, 5, 1))
sketch2.addConstraint(Sketcher.Constraint("Coincident", 5, 2, 6, 1))
sketch2.addConstraint(Sketcher.Constraint("Coincident", 6, 2, 7, 1))
sketch2.addConstraint(Sketcher.Constraint("Coincident", 7, 2, 8, 1))
sketch2.addConstraint(Sketcher.Constraint("Coincident", 8, 2, 9, 1))
sketch2.addConstraint(Sketcher.Constraint("Coincident", 9, 2, 10, 1))
sketch2.addConstraint(Sketcher.Constraint("Coincident", 10, 2, 11, 1))
sketch2.addConstraint(Sketcher.Constraint("Coincident", 11, 2, 0, 1))
sketch2.addConstraint(Sketcher.Constraint("Coincident", 12, 2, 13, 1))
sketch2.addConstraint(Sketcher.Constraint("Coincident", 13, 2, 14, 1))
sketch2.addConstraint(Sketcher.Constraint("Coincident", 14, 2, 15, 1))
sketch2.addConstraint(Sketcher.Constraint("Coincident", 15, 2, 16, 1))
sketch2.addConstraint(Sketcher.Constraint("Coincident", 16, 2, 17, 1))
sketch2.addConstraint(Sketcher.Constraint("Coincident", 17, 2, 18, 1))
sketch2.addConstraint(Sketcher.Constraint("Coincident", 18, 2, 19, 1))
sketch2.addConstraint(Sketcher.Constraint("Coincident", 19, 2, 12, 1))
sketch2.addConstraint(Sketcher.Constraint("Coincident", 20, 2, 21, 1))
sketch2.addConstraint(Sketcher.Constraint("Coincident", 21, 2, 22, 1))
sketch2.addConstraint(Sketcher.Constraint("Coincident", 22, 2, 23, 1))
sketch2.addConstraint(Sketcher.Constraint("Coincident", 23, 2, 24, 1))
sketch2.addConstraint(Sketcher.Constraint("Coincident", 24, 2, 25, 1))
sketch2.addConstraint(Sketcher.Constraint("Coincident", 25, 2, 26, 1))
sketch2.addConstraint(Sketcher.Constraint("Coincident", 26, 2, 27, 1))
sketch2.addConstraint(Sketcher.Constraint("Coincident", 27, 2, 20, 1))
sketch2.addConstraint(Sketcher.Constraint("Coincident", 28, 2, 29, 1))
sketch2.addConstraint(Sketcher.Constraint("Coincident", 29, 2, 30, 1))
sketch2.addConstraint(Sketcher.Constraint("Coincident", 30, 2, 31, 1))
sketch2.addConstraint(Sketcher.Constraint("Coincident", 31, 2, 32, 1))
sketch2.addConstraint(Sketcher.Constraint("Coincident", 32, 2, 33, 1))
sketch2.addConstraint(Sketcher.Constraint("Coincident", 33, 2, 34, 1))
sketch2.addConstraint(Sketcher.Constraint("Coincident", 34, 2, 35, 1))
sketch2.addConstraint(Sketcher.Constraint("Coincident", 35, 2, 28, 1))
sketch2.addConstraint(Sketcher.Constraint("Coincident", 36, 2, 37, 1))
sketch2.addConstraint(Sketcher.Constraint("Coincident", 37, 2, 38, 1))
sketch2.addConstraint(Sketcher.Constraint("Coincident", 38, 2, 36, 1))
sketch2.addConstraint(Sketcher.Constraint("Vertical", 0))
sketch2.addConstraint(Sketcher.Constraint("Horizontal", 1))
sketch2.addConstraint(Sketcher.Constraint("Vertical", 2))
sketch2.addConstraint(Sketcher.Constraint("Horizontal", 3))
sketch2.addConstraint(Sketcher.Constraint("Vertical", 4))
sketch2.addConstraint(Sketcher.Constraint("Horizontal", 5))
sketch2.addConstraint(Sketcher.Constraint("Vertical", 6))
sketch2.addConstraint(Sketcher.Constraint("Horizontal", 7))
sketch2.addConstraint(Sketcher.Constraint("Vertical", 8))
sketch2.addConstraint(Sketcher.Constraint("Horizontal", 9))
sketch2.addConstraint(Sketcher.Constraint("Vertical", 10))
sketch2.addConstraint(Sketcher.Constraint("Horizontal", 11))
sketch2.addConstraint(Sketcher.Constraint("Vertical", 12))
sketch2.addConstraint(Sketcher.Constraint("Horizontal", 13))
sketch2.addConstraint(Sketcher.Constraint("Vertical", 14))
sketch2.addConstraint(Sketcher.Constraint("Horizontal", 15))
sketch2.addConstraint(Sketcher.Constraint("Vertical", 16))
sketch2.addConstraint(Sketcher.Constraint("Horizontal", 17))
sketch2.addConstraint(Sketcher.Constraint("Vertical", 18))
sketch2.addConstraint(Sketcher.Constraint("Horizontal", 19))
sketch2.addConstraint(Sketcher.Constraint("Vertical", 20))
sketch2.addConstraint(Sketcher.Constraint("Horizontal", 21))
sketch2.addConstraint(Sketcher.Constraint("Vertical", 22))
sketch2.addConstraint(Sketcher.Constraint("Horizontal", 23))
sketch2.addConstraint(Sketcher.Constraint("Vertical", 24))
sketch2.addConstraint(Sketcher.Constraint("Horizontal", 25))
sketch2.addConstraint(Sketcher.Constraint("Vertical", 26))
sketch2.addConstraint(Sketcher.Constraint("Horizontal", 27))
sketch2.addConstraint(Sketcher.Constraint("Horizontal", 29))
sketch2.addConstraint(Sketcher.Constraint("Horizontal", 31))
sketch2.addConstraint(Sketcher.Constraint("Horizontal", 33))
sketch2.addConstraint(Sketcher.Constraint("Horizontal", 35))
sketch2.addConstraint(Sketcher.Constraint("Horizontal", 37))
sketch2.addConstraint(Sketcher.Constraint("Horizontal", 1, 2, 12, 2))
sketch2.addConstraint(Sketcher.Constraint("Horizontal", 9, 2, 14, 2))
sketch2.addConstraint(Sketcher.Constraint("Horizontal", 11, 2, 16, 2))
sketch2.addConstraint(Sketcher.Constraint("Horizontal", 15, 2, 18, 2))
sketch2.addConstraint(Sketcher.Constraint("Horizontal", 13, 2, 20, 2))
sketch2.addConstraint(Sketcher.Constraint("Horizontal", 19, 2, 22, 2))
sketch2.addConstraint(Sketcher.Constraint("Horizontal", 17, 2, 24, 2))
sketch2.addConstraint(Sketcher.Constraint("Horizontal", 23, 2, 26, 2))
sketch2.addConstraint(Sketcher.Constraint("Horizontal", 21, 2, 28, 2))
sketch2.addConstraint(Sketcher.Constraint("Horizontal", 29, 2, 32, 2))
sketch2.addConstraint(Sketcher.Constraint("Horizontal", 25, 2, 34, 2))
sketch2.addConstraint(Sketcher.Constraint("Vertical", 4, 2, 7, 2))
sketch2.addConstraint(Sketcher.Constraint("Vertical", 2, 2, 9, 2))
sketch2.addConstraint(Sketcher.Constraint("Equal", 15, 19))
sketch2.addConstraint(Sketcher.Constraint("Equal", 13, 21))
sketch2.addConstraint(Sketcher.Constraint("Equal", 19, 23))
sketch2.addConstraint(Sketcher.Constraint("Equal", 17, 25))
sketch2.addConstraint(Sketcher.Constraint("Equal", 21, 29))
sketch2.addConstraint(Sketcher.Constraint("Equal", 2, 6))
sketch2.addConstraint(Sketcher.Constraint("Equal", 6, 10))
sketch2.addConstraint(Sketcher.Constraint("Equal", 28, 34))
sketch2.addConstraint(Sketcher.Constraint("DistanceX", 1, 2, 1, 1, Q("4.12 mm")))
sketch2.addConstraint(Sketcher.Constraint("DistanceX", 5, 2, 5, 1, Q("2.396 mm")))
sketch2.addConstraint(Sketcher.Constraint("DistanceX", 15, 2, 15, 1, Q("1.803 mm")))
sketch2.addConstraint(Sketcher.Constraint("DistanceX", 33, 2, 33, 1, Q("1.576 mm")))
sketch2.addConstraint(Sketcher.Constraint("DistanceY", 0, 2, 0, 1, Q("6.096 mm")))
sketch2.addConstraint(Sketcher.Constraint("DistanceY", 2, 1, 2, 2, Q("1.161 mm")))
sketch2.addConstraint(Sketcher.Constraint("DistanceY", 8, 1, 8, 2, Q("1.072 mm")))
sketch2.addConstraint(Sketcher.Constraint("DistanceY", 8, 2, -1, 1, Q("17.92 mm")))
sketch2.addConstraint(Sketcher.Constraint("DistanceX", 33, 2, 34, 2, Q("2.06 mm")))
sketch2.addConstraint(Sketcher.Constraint("Distance", 38, Q("2.111 mm")))
sketch2.addConstraint(Sketcher.Constraint("DistanceX", 3, 1, 3, 2, Q("2.5985 mm")))
sketch2.addConstraint(Sketcher.Constraint("DistanceX", 13, 2, 13, 1, Q("1.5314 mm")))
sketch2.addConstraint(Sketcher.Constraint("DistanceX", 31, 2, 31, 1, Q("1.9167 mm")))
sketch2.addConstraint(Sketcher.Constraint("DistanceX", 35, 1, 35, 2, Q("1.6698 mm")))
sketch2.addConstraint(Sketcher.Constraint("DistanceX", 37, 1, 37, 2, Q("1.2498 mm")))
sketch2.addConstraint(Sketcher.Constraint("DistanceX", -1, 1, 12, 2, Q("0.029 mm")))
sketch2.addConstraint(Sketcher.Constraint("DistanceX", 25, 2, -1, 1, Q("23.093 mm")))
sketch2.addConstraint(Sketcher.Constraint("DistanceX", 28, 2, -1, 1, Q("46.071 mm")))
sketch2.addConstraint(Sketcher.Constraint("DistanceX", 38, 2, -1, 1, Q("48.946 mm")))
sketch2.addConstraint(Sketcher.Constraint("DistanceY", 38, 2, -1, 1, Q("18.488 mm")))
sketch2.addConstraint(Sketcher.Constraint("DistanceX", 13, 2, 5, 2, Q("23.026 mm")))
sketch2.addConstraint(Sketcher.Constraint("DistanceY", 29, 2, 30, 2, Q("1.245 mm")))
sketch2.addConstraint(Sketcher.Constraint("DistanceX", 30, 2, 23, 2, Q("19.757 mm")))
sketch2.addConstraint(Sketcher.Constraint("DistanceX", 31, 2, 36, 2, Q("0.336 mm")))
pad2 = body.newObject("PartDesign::Pad", "Pad001")
pad2.Profile = sketch2
pad2.Length = 3
pad2.Reversed = True

sketch3 = body.newObject("Sketcher::SketchObject", "Sketch002")
sketch3.AttachmentSupport = (doc.getObject("XZ_Plane"), [""])
sketch3.MapMode = "FlatFace"
sketch3.addGeometry(Part.BSplineCurve([V(47.8409, -21.0668, 0), V(47.8409, -21.462, 0), V(48.1126, -22.1635, 0), V(48.3843, -22.4105, 0)], [3, 1, 3], [0, 1, 2], False, 2, [1, 1, 1, 1], False), False)
sketch3.addGeometry(Part.LineSegment(V(47.8409, -21.0668, 0), V(47.8409, -16.7591, 0)), False)
sketch3.addGeometry(Part.LineSegment(V(47.8409, -16.7591, 0), V(50.7654, -16.7591, 0)), False)
sketch3.addGeometry(Part.LineSegment(V(50.7654, -16.7591, 0), V(50.7654, -17.8657, 0)), False)
sketch3.addGeometry(Part.LineSegment(V(50.7654, -17.8657, 0), V(49.3723, -17.8657, 0)), False)
sketch3.addGeometry(Part.LineSegment(V(49.3723, -17.8657, 0), V(49.3723, -20.311, 0)), False)
sketch3.addGeometry(Part.BSplineCurve([V(49.4859, -21.3632, 0), V(49.3921, -21.1607, 0), V(49.3723, -20.6371, 0), V(49.3723, -20.311, 0)], [3, 1, 3], [0, 1, 2], False, 2, [1, 1, 1, 1], False), False)
sketch3.addGeometry(Part.BSplineCurve([V(50.4196, -21.798, 0), V(50.0145, -21.798, 0), V(49.5748, -21.5707, 0), V(49.4859, -21.3632, 0)], [3, 1, 3], [0, 1, 2], False, 2, [1, 1, 1, 1], False), False)
sketch3.addGeometry(Part.BSplineCurve([V(51.3187, -21.5954, 0), V(51.1359, -21.6695, 0), V(50.7357, -21.798, 0), V(50.4196, -21.798, 0)], [3, 1, 3], [0, 1, 2], False, 2, [1, 1, 1, 1], False), False)
sketch3.addGeometry(Part.LineSegment(V(51.3187, -21.5954, 0), V(51.457, -21.5954, 0)), False)
sketch3.addGeometry(Part.LineSegment(V(51.457, -21.5954, 0), V(51.457, -22.8304, 0)), False)
sketch3.addGeometry(Part.BSplineCurve([V(50.0688, -22.949, 0), V(50.4739, -22.949, 0), V(51.1853, -22.8897, 0), V(51.457, -22.8304, 0)], [3, 1, 3], [0, 1, 2], False, 2, [1, 1, 1, 1], False), False)
sketch3.addGeometry(Part.BSplineCurve([V(48.3843, -22.4105, 0), V(48.6906, -22.6872, 0), V(49.5254, -22.949, 0), V(50.0688, -22.949, 0)], [3, 1, 3], [0, 1, 2], False, 2, [1, 1, 1, 1], False), False)
sketch3.addConstraint(Sketcher.Constraint("Block", 0))
sketch3.addConstraint(Sketcher.Constraint("Block", 6))
sketch3.addConstraint(Sketcher.Constraint("Block", 7))
sketch3.addConstraint(Sketcher.Constraint("Block", 8))
sketch3.addConstraint(Sketcher.Constraint("Block", 11))
sketch3.addConstraint(Sketcher.Constraint("Block", 12))
sketch3.addConstraint(Sketcher.Constraint("Coincident", 0, 1, 1, 1))
sketch3.addConstraint(Sketcher.Constraint("Coincident", 1, 2, 2, 1))
sketch3.addConstraint(Sketcher.Constraint("Coincident", 2, 2, 3, 1))
sketch3.addConstraint(Sketcher.Constraint("Coincident", 3, 2, 4, 1))
sketch3.addConstraint(Sketcher.Constraint("Coincident", 4, 2, 5, 1))
sketch3.addConstraint(Sketcher.Constraint("Coincident", 5, 2, 6, 2))
sketch3.addConstraint(Sketcher.Constraint("Coincident", 8, 1, 9, 1))
sketch3.addConstraint(Sketcher.Constraint("Coincident", 9, 2, 10, 1))
sketch3.addConstraint(Sketcher.Constraint("Coincident", 10, 2, 11, 2))
sketch3.addConstraint(Sketcher.Constraint("Vertical", 1))
sketch3.addConstraint(Sketcher.Constraint("Horizontal", 2))
sketch3.addConstraint(Sketcher.Constraint("Vertical", 3))
sketch3.addConstraint(Sketcher.Constraint("Horizontal", 4))
sketch3.addConstraint(Sketcher.Constraint("Vertical", 5))
sketch3.addConstraint(Sketcher.Constraint("Horizontal", 9))
sketch3.addConstraint(Sketcher.Constraint("Vertical", 10))
sketch3.addConstraint(Sketcher.Constraint("DistanceX", 4, 2, 4, 1, Q("1.393 mm")))
sketch3.addConstraint(Sketcher.Constraint("DistanceY", 1, 1, 1, 2, Q("4.3077 mm")))
sketch3.addConstraint(Sketcher.Constraint("DistanceY", 3, 2, 3, 1, Q("1.1066 mm")))
pad3 = body.newObject("PartDesign::Pad", "Pad002")
pad3.Profile = sketch3
pad3.Length = 3
pad3.Reversed = True
doc.recompute()

fillet = body.newObject("PartDesign::Fillet", "Fillet")
fillet.Base = (pad3, edges_at(pad3, [
    (-86.5, 1, -32),
    (-86.5, 1, 32),
    (86.5, 1, 32),
    (86.5, 1, -32),
    (66.5, 1, 12),
    (66.5, 1, -12),
    (-66.5, 1, 12),
    (-66.5, 1, -12),
]))
fillet.Radius = 2

doc.recompute()
